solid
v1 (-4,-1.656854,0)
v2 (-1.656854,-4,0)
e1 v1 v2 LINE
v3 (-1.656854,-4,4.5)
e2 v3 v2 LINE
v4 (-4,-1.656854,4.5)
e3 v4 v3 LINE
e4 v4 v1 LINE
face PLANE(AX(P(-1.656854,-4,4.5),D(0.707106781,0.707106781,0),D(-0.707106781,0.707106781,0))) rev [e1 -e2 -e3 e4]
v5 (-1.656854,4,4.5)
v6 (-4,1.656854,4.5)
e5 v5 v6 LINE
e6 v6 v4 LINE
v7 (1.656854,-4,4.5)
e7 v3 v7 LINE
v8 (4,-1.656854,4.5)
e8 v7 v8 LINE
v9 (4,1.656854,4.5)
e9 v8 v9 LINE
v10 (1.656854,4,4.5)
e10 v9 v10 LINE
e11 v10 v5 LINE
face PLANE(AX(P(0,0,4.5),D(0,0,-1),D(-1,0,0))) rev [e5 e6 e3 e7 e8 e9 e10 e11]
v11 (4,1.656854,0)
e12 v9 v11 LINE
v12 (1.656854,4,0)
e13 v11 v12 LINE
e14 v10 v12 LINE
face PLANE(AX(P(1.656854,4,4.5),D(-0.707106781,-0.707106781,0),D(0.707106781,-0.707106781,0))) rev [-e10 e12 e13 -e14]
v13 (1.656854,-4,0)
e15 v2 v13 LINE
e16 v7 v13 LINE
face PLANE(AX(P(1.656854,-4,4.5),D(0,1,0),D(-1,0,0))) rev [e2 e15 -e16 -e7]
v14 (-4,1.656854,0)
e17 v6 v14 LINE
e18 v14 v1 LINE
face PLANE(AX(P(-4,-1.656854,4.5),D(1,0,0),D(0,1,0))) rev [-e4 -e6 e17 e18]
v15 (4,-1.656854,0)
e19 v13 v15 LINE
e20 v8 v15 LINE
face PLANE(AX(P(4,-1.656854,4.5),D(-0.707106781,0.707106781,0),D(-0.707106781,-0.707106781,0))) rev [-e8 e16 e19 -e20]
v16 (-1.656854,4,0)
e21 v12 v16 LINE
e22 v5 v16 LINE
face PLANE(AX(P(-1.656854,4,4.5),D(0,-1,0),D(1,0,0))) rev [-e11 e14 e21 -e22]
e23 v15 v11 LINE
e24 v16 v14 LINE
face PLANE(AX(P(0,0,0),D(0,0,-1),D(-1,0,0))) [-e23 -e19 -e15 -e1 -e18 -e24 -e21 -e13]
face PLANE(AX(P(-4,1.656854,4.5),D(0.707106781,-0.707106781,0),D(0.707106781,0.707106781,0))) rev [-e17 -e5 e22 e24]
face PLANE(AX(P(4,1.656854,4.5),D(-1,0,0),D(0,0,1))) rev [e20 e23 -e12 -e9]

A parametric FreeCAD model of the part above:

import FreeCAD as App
import Part
import Sketcher

doc = App.newDocument("Part")
body = doc.addObject("PartDesign::Body", "Body")

# Sketch on XY plane
sketch1 = body.newObject("Sketcher::SketchObject", "Sketch")
sketch1.AttachmentSupport = (doc.getObject("XY_Plane"), [""])
sketch1.MapMode = "FlatFace"
sketch1.addGeometry([
    Part.LineSegment(App.Vector(1.656854, 4, 0), App.Vector(-1.656854, 4, 0)),  # 0
    Part.LineSegment(App.Vector(-1.656854, 4, 0), App.Vector(-4, 1.656854, 0)),  # 1
    Part.LineSegment(App.Vector(-4, 1.656854, 0), App.Vector(-4, -1.656854, 0)),  # 2
    Part.LineSegment(App.Vector(-4, -1.656854, 0), App.Vector(-1.656854, -4, 0)),  # 3
    Part.LineSegment(App.Vector(-1.656854, -4, 0), App.Vector(1.656854, -4, 0)),  # 4
    Part.LineSegment(App.Vector(1.656854, -4, 0), App.Vector(4, -1.656854, 0)),  # 5
    Part.LineSegment(App.Vector(4, -1.656854, 0), App.Vector(4, 1.656854, 0)),  # 6
    Part.LineSegment(App.Vector(4, 1.656854, 0), App.Vector(1.656854, 4, 0)),  # 7
], False)
sketch1.addConstraint([
    Sketcher.Constraint("Coincident", 0, 2, 1, 1),
    Sketcher.Constraint("Coincident", 1, 2, 2, 1),
    Sketcher.Constraint("Coincident", 2, 2, 3, 1),
    Sketcher.Constraint("Coincident", 3, 2, 4, 1),
    Sketcher.Constraint("Coincident", 4, 2, 5, 1),
    Sketcher.Constraint("Coincident", 5, 2, 6, 1),
    Sketcher.Constraint("Coincident", 6, 2, 7, 1),
    Sketcher.Constraint("Coincident", 7, 2, 0, 1),
    Sketcher.Constraint("Horizontal", 0),
    Sketcher.Constraint("Vertical", 2),
    Sketcher.Constraint("Horizontal", 4),
    Sketcher.Constraint("Vertical", 6),
    Sketcher.Constraint("Symmetric", 0, 2, 4, 2, -1, 1),
    Sketcher.Constraint("Symmetric", 1, 2, 5, 2, -1, 1),
    Sketcher.Constraint("Perpendicular", 1, 3),
    Sketcher.Constraint("Perpendicular", 5, 7),
    Sketcher.Constraint("Horizontal", 2, 2, 5, 2),
    Sketcher.Constraint("Horizontal", 1, 2, 6, 2),
    Sketcher.Constraint("Vertical", 0, 2, 3, 2),
    Sketcher.Constraint("Equal", 4, 2),
    Sketcher.Constraint("DistanceY", -1, 1, 0, 2, 4.0),
    Sketcher.Constraint("DistanceX", 0, 2, 0, 1, 3.313708),
])
pad1 = body.newObject("PartDesign::Pad", "Pad")
pad1.Profile = sketch1
pad1.Length = 4.5

doc.recompute()
